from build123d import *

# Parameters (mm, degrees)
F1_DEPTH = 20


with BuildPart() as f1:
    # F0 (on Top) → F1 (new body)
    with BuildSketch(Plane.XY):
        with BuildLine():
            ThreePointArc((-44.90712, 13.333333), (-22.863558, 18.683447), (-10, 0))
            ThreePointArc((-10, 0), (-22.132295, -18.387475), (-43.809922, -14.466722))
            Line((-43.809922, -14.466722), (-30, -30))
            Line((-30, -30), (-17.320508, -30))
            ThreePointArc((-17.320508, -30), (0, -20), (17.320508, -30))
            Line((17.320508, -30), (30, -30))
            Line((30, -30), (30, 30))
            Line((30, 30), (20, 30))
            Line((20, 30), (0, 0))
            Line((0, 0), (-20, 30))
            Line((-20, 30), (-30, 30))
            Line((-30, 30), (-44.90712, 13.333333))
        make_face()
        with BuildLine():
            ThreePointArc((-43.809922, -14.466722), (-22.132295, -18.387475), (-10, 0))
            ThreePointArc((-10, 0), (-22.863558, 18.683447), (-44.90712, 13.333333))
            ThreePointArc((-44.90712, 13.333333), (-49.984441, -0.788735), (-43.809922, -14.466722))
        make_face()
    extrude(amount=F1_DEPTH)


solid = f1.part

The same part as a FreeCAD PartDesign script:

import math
import FreeCAD as App
import Part
import Sketcher
Q = App.Units.Quantity

doc = App.newDocument("Part")
body = doc.addObject("PartDesign::Body", "Body")

sketch1 = doc.addObject("Sketcher::SketchObject", "Sketch")
body.addObject(sketch1)
sketch1.AttachmentSupport = (doc.XY_Plane, [""])
sketch1.MapMode = "FlatFace"
sketch1.addGeometry(Part.LineSegment(App.Vector(-43.809922, -14.466722, 0), App.Vector(-30, -30, 0)), False)
sketch1.addGeometry(Part.LineSegment(App.Vector(-30, -30, 0), App.Vector(-17.320508, -30, 0)), False)
sketch1.addGeometry(Part.ArcOfCircle(Part.Circle(App.Vector(0, -40, 0), App.Vector(0, 0, 1), 20), math.radians(30), math.radians(150)), False)
sketch1.addGeometry(Part.LineSegment(App.Vector(17.320508, -30, 0), App.Vector(30, -30, 0)), False)
sketch1.addGeometry(Part.LineSegment(App.Vector(30, -30, 0), App.Vector(30, 30, 0)), False)
sketch1.addGeometry(Part.LineSegment(App.Vector(30, 30, 0), App.Vector(20, 30, 0)), False)
sketch1.addGeometry(Part.LineSegment(App.Vector(20, 30, 0), App.Vector(0, 0, 0)), False)
sketch1.addGeometry(Part.LineSegment(App.Vector(0, 0, 0), App.Vector(-20, 30, 0)), False)
sketch1.addGeometry(Part.LineSegment(App.Vector(-20, 30, 0), App.Vector(-30, 30, 0)), False)
sketch1.addGeometry(Part.LineSegment(App.Vector(-30, 30, 0), App.Vector(-44.90712, 13.333333, 0)), False)
sketch1.addGeometry(Part.ArcOfCircle(Part.Circle(App.Vector(-29.999999, 0, 0), App.Vector(0, 0, 1), 20), math.radians(138.189688), math.radians(226.330606)), False)
sketch1.addConstraint(Sketcher.Constraint("Coincident", 0, 2, 1, 1))
sketch1.addConstraint(Sketcher.Constraint("Coincident", 1, 2, 2, 2))
sketch1.addConstraint(Sketcher.Constraint("Coincident", 2, 1, 3, 1))
sketch1.addConstraint(Sketcher.Constraint("Coincident", 3, 2, 4, 1))
sketch1.addConstraint(Sketcher.Constraint("Coincident", 4, 2, 5, 1))
sketch1.addConstraint(Sketcher.Constraint("Coincident", 5, 2, 6, 1))
sketch1.addConstraint(Sketcher.Constraint("Coincident", 6, 2, 7, 1))
sketch1.addConstraint(Sketcher.Constraint("Coincident", 7, 2, 8, 1))
sketch1.addConstraint(Sketcher.Constraint("Coincident", 8, 2, 9, 1))
sketch1.addConstraint(Sketcher.Constraint("Tangent", 9, 2, 10, 1))
sketch1.addConstraint(Sketcher.Constraint("Coincident", 10, 2, 0, 1))
sketch1.addConstraint(Sketcher.Constraint("Horizontal", 1))
sketch1.addConstraint(Sketcher.Constraint("Horizontal", 3))
sketch1.addConstraint(Sketcher.Constraint("Vertical", 4))
sketch1.addConstraint(Sketcher.Constraint("Horizontal", 5))
sketch1.addConstraint(Sketcher.Constraint("Horizontal", 8))
sketch1.addConstraint(Sketcher.Constraint("Coincident", 6, 2, -1, 1))
sketch1.addConstraint(Sketcher.Constraint("Equal", 2, 10))
sketch1.addConstraint(Sketcher.Constraint("Symmetric", 0, 2, 4, 2, -1, 1))
sketch1.addConstraint(Sketcher.Constraint("Symmetric", 3, 2, 8, 2, -1, 1))
sketch1.addConstraint(Sketcher.Constraint("Symmetric", 1, 2, 2, 1, -2))
sketch1.addConstraint(Sketcher.Constraint("PointOnObject", 10, 3, -1))
sketch1.addConstraint(Sketcher.Constraint("Vertical", 10, 3, 0, 2))
sketch1.addConstraint(Sketcher.Constraint("Equal", 5, 8))
sketch1.addConstraint(Sketcher.Constraint("Radius", 2, Q("20 mm")))
sketch1.addConstraint(Sketcher.Constraint("DistanceX", 5, 2, 5, 1, Q("10 mm")))
sketch1.addConstraint(Sketcher.Constraint("DistanceY", 4, 1, 4, 2, Q("60 mm")))
sketch1.addConstraint(Sketcher.Constraint("DistanceY", 2, 3, -1, 1, Q("40 mm")))
sketch1.addConstraint(Sketcher.Constraint("DistanceX", 10, 3, -1, 1, Q("29.999999 mm")))
sketch1.addConstraint(Sketcher.Constraint("Distance", 0, Q("20.78453 mm")))
pad1 = doc.addObject("PartDesign::Pad", "Pad")
body.addObject(pad1)
pad1.Profile = sketch1
pad1.Length = 20

doc.recompute()
